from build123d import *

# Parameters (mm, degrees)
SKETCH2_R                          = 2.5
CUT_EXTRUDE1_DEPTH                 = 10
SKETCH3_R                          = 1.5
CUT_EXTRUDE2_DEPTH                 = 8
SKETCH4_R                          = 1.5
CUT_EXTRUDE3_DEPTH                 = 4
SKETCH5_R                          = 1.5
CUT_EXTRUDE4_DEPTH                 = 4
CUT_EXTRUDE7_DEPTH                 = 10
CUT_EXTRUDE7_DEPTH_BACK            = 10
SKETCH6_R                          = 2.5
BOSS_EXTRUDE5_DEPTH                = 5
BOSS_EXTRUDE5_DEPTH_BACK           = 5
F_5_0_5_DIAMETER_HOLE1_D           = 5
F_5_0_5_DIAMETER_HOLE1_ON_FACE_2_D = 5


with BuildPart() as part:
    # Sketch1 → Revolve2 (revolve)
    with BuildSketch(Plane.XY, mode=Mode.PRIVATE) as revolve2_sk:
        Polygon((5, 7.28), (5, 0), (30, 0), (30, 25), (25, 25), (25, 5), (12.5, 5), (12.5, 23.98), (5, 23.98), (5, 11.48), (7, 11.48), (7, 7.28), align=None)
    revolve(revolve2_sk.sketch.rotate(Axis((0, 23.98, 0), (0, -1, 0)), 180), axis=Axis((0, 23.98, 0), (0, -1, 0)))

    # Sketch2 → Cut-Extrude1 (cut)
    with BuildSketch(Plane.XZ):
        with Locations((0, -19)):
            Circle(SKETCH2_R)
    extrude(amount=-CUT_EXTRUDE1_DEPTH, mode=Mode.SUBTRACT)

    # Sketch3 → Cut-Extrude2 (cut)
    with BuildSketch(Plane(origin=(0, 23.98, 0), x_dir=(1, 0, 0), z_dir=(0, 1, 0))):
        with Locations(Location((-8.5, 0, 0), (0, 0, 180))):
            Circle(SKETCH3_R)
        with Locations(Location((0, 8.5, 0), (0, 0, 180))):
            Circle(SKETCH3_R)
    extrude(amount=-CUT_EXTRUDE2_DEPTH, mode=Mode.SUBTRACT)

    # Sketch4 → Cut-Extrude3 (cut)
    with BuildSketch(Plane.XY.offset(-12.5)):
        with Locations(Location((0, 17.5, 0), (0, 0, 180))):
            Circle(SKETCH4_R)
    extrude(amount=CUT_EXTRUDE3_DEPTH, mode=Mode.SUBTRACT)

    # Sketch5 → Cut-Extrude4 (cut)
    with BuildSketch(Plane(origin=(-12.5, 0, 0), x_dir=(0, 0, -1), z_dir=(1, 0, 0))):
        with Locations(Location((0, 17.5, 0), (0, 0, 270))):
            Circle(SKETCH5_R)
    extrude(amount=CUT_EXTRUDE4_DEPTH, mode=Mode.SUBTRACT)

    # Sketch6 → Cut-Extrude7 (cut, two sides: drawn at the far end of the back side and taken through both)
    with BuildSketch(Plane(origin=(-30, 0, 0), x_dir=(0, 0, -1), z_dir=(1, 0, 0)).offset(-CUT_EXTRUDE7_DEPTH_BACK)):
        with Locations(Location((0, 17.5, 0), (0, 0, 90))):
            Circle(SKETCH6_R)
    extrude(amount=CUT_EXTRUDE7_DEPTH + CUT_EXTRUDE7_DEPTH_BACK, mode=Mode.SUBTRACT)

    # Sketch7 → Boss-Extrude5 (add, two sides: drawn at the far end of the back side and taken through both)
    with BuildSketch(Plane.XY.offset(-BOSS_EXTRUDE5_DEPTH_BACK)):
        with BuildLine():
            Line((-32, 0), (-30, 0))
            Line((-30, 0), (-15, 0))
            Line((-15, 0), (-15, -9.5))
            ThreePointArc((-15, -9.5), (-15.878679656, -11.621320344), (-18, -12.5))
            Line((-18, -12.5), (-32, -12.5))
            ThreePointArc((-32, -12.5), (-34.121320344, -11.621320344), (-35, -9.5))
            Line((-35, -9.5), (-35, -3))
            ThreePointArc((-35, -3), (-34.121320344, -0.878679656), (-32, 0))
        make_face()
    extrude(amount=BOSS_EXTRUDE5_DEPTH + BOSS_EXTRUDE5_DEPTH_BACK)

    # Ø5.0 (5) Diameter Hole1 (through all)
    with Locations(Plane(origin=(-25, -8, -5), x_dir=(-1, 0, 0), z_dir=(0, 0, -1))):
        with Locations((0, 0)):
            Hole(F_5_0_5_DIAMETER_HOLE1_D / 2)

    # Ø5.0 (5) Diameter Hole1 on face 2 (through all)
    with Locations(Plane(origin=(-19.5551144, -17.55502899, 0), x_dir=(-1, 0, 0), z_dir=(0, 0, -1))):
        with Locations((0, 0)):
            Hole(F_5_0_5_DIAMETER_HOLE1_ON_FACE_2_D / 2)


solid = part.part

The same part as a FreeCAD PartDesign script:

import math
import FreeCAD as App
import Part
import Sketcher

V = App.Vector
Q = App.Units.Quantity


def add_polygon(sketch, points):
    """Adds a closed chain of lines whose ends are joined by coincident constraints."""
    first, n = sketch.GeometryCount, len(points)
    for a, b in zip(points, points[1:] + points[:1]):
        sketch.addGeometry(Part.LineSegment(App.Vector(*a, 0), App.Vector(*b, 0)), False)
    for i in range(n):
        sketch.addConstraint(Sketcher.Constraint("Coincident", first + i, 2, first + (i + 1) % n, 1))

doc = App.newDocument("Part")
params = doc.addObject("Spreadsheet::Sheet", "Params")
for row, (alias, value) in enumerate([
    ("sketch1_width", "25 mm"),
    ("sketch1_width2", "5 mm"),
    ("sketch1_width3", "2 mm"),
    ("sketch1_height", "20 mm"),
    ("sketch1_width4", "12.5 mm"),
    ("revolution_angle", "360 deg"),
    ("sketch2_diameter", "5 mm"),
    ("pocket1_length", "10 mm"),
    ("sketch3_diameter", "3 mm"),
    ("pocket2_length", "8 mm"),
    ("sketch4_diameter", "3 mm"),
    ("pocket3_length", "4 mm"),
    ("sketch5_diameter", "3 mm"),
    ("pocket4_length", "4 mm"),
    ("sketch6_diameter", "5 mm"),
    ("pocket5_length", "10 mm"),
    ("pocket5_length2", "10 mm"),
    ("sketch7_radius", "3 mm"),
    ("sketch7_width", "17 mm"),
    ("sketch7_height", "6.5 mm"),
    ("pad1_length", "5 mm"),
    ("pad1_length2", "5 mm"),
    ("sketch8_diameter", "5 mm"),
    ("hole_diameter", "5 mm"),
    ("sketch9_diameter", "5 mm"),
    ("hole2_diameter", "5 mm"),
], start=1):
    params.set(f"A{row}", alias)
    params.set(f"B{row}", "=" + value)
    params.setAlias(f"B{row}", alias)

body = doc.addObject("PartDesign::Body", "Body")

# Sketch on XY plane
sketch1 = body.newObject("Sketcher::SketchObject", "Sketch")
sketch1.AttachmentSupport = (doc.getObject("XY_Plane"), [""])
sketch1.MapMode = "FlatFace"
add_polygon(sketch1, [(5, 7.3), (5, 0), (30, 0), (30, 25), (25, 25), (25, 5), (12.5, 5), (12.5, 24), (5, 24), (5, 11.5), (7, 11.5), (7, 7.3)])  # lines 0-11
sketch1.addConstraint(Sketcher.Constraint("Vertical", 0))
sketch1.addConstraint(Sketcher.Constraint("Horizontal", 1))
sketch1.addConstraint(Sketcher.Constraint("Vertical", 2))
sketch1.addConstraint(Sketcher.Constraint("Horizontal", 3))
sketch1.addConstraint(Sketcher.Constraint("Vertical", 4))
sketch1.addConstraint(Sketcher.Constraint("Horizontal", 5))
sketch1.addConstraint(Sketcher.Constraint("Vertical", 6))
sketch1.addConstraint(Sketcher.Constraint("Horizontal", 7))
sketch1.addConstraint(Sketcher.Constraint("Vertical", 8))
sketch1.addConstraint(Sketcher.Constraint("Horizontal", 9))
sketch1.addConstraint(Sketcher.Constraint("Vertical", 10))
sketch1.addConstraint(Sketcher.Constraint("Horizontal", 11))
sketch1.addConstraint(Sketcher.Constraint("PointOnObject", 0, 2, -1))
sketch1.addConstraint(Sketcher.Constraint("Vertical", 0, 2, 7, 2))
sketch1.addConstraint(Sketcher.Constraint("Equal", 1, 2))
sketch1.addConstraint(Sketcher.Constraint("Equal", 5, 8))
sketch1.addConstraint(Sketcher.Constraint("DistanceX", 1, 1, 1, 2, Q("25 mm")))
sketch1.addConstraint(Sketcher.Constraint("DistanceX", 3, 2, 3, 1, Q("5 mm")))
sketch1.addConstraint(Sketcher.Constraint("DistanceX", 9, 1, 9, 2, Q("2 mm")))
sketch1.addConstraint(Sketcher.Constraint("DistanceY", 4, 2, 4, 1, Q("20 mm")))
sketch1.addConstraint(Sketcher.Constraint("DistanceX", 5, 2, 5, 1, Q("12.5 mm")))
sketch1.addConstraint(Sketcher.Constraint("DistanceY", 10, 2, 10, 1, Q("4.2 mm")))
sketch1.addConstraint(Sketcher.Constraint("DistanceX", -1, 1, 0, 2, Q("5 mm")))
sketch1.addConstraint(Sketcher.Constraint("DistanceY", 0, 2, 0, 1, Q("7.28 mm")))
sketch1.setExpression("Constraints[28]", "Params.sketch1_width")
sketch1.setExpression("Constraints[29]", "Params.sketch1_width2")
sketch1.setExpression("Constraints[30]", "Params.sketch1_width3")
sketch1.setExpression("Constraints[31]", "Params.sketch1_height")
sketch1.setExpression("Constraints[32]", "Params.sketch1_width4")
revolution = body.newObject("PartDesign::Revolution", "Revolution")
revolution.Profile = sketch1
revolution.ReferenceAxis = (sketch1, ["V_Axis"])
revolution.setExpression("Angle", "Params.revolution_angle")

# Sketch on XZ plane
sketch2 = body.newObject("Sketcher::SketchObject", "Sketch001")
sketch2.AttachmentSupport = (doc.getObject("XZ_Plane"), [""])
sketch2.MapMode = "FlatFace"
sketch2.addGeometry(Part.Circle(V(0, -19, 0), V(0, 0, 1), 2.5), False)
sketch2.addConstraint(Sketcher.Constraint("PointOnObject", 0, 3, -2))
sketch2.addConstraint(Sketcher.Constraint("Diameter", 0, Q("5 mm")))
sketch2.addConstraint(Sketcher.Constraint("DistanceY", 0, 3, -1, 1, Q("19 mm")))
sketch2.setExpression("Constraints[1]", "Params.sketch2_diameter")
pocket1 = body.newObject("PartDesign::Pocket", "Pocket")
pocket1.Profile = sketch2
pocket1.setExpression("Length", "Params.pocket1_length")

# Sketch on XZ plane
sketch3 = body.newObject("Sketcher::SketchObject", "Sketch002")
sketch3.AttachmentSupport = (doc.getObject("XZ_Plane"), [""])
sketch3.MapMode = "FlatFace"
sketch3.AttachmentOffset = App.Placement(V(0, 0, -23.98), App.Rotation())
sketch3.addGeometry(Part.Circle(V(-8.5, 0, 0), V(0, 0, 1), 1.5), False)
sketch3.addGeometry(Part.Circle(V(0, -8.5, 0), V(0, 0, 1), 1.5), False)
sketch3.addConstraint(Sketcher.Constraint("Equal", 0, 1))
sketch3.addConstraint(Sketcher.Constraint("PointOnObject", 0, 3, -1))
sketch3.addConstraint(Sketcher.Constraint("PointOnObject", 1, 3, -2))
sketch3.addConstraint(Sketcher.Constraint("Diameter", 0, Q("3 mm")))
sketch3.addConstraint(Sketcher.Constraint("DistanceX", 0, 3, -1, 1, Q("8.5 mm")))
sketch3.addConstraint(Sketcher.Constraint("DistanceY", 1, 3, -1, 1, Q("8.5 mm")))
sketch3.setExpression("Constraints[3]", "Params.sketch3_diameter")
pocket2 = body.newObject("PartDesign::Pocket", "Pocket001")
pocket2.Profile = sketch3
pocket2.setExpression("Length", "Params.pocket2_length")
pocket2.Reversed = True

# Sketch on XY plane
sketch4 = body.newObject("Sketcher::SketchObject", "Sketch003")
sketch4.AttachmentSupport = (doc.getObject("XY_Plane"), [""])
sketch4.MapMode = "FlatFace"
sketch4.AttachmentOffset = App.Placement(V(0, 0, -12.5), App.Rotation())
sketch4.addGeometry(Part.Circle(V(0, 17.5, 0), V(0, 0, 1), 1.5), False)
sketch4.addConstraint(Sketcher.Constraint("PointOnObject", 0, 3, -2))
sketch4.addConstraint(Sketcher.Constraint("Diameter", 0, Q("3 mm")))
sketch4.addConstraint(Sketcher.Constraint("DistanceY", -1, 1, 0, 3, Q("17.5 mm")))
sketch4.setExpression("Constraints[1]", "Params.sketch4_diameter")
pocket3 = body.newObject("PartDesign::Pocket", "Pocket002")
pocket3.Profile = sketch4
pocket3.setExpression("Length", "Params.pocket3_length")
pocket3.Reversed = True

# Sketch on YZ plane
sketch5 = body.newObject("Sketcher::SketchObject", "Sketch004")
sketch5.AttachmentSupport = (doc.getObject("YZ_Plane"), [""])
sketch5.MapMode = "FlatFace"
sketch5.AttachmentOffset = App.Placement(V(0, 0, -12.5), App.Rotation())
sketch5.addGeometry(Part.Circle(V(17.5, 0, 0), V(0, 0, 1), 1.5), False)
sketch5.addConstraint(Sketcher.Constraint("PointOnObject", 0, 3, -1))
sketch5.addConstraint(Sketcher.Constraint("Diameter", 0, Q("3 mm")))
sketch5.addConstraint(Sketcher.Constraint("DistanceX", -1, 1, 0, 3, Q("17.5 mm")))
sketch5.setExpression("Constraints[1]", "Params.sketch5_diameter")
pocket4 = body.newObject("PartDesign::Pocket", "Pocket003")
pocket4.Profile = sketch5
pocket4.setExpression("Length", "Params.pocket4_length")
pocket4.Reversed = True

# Sketch on YZ plane
sketch6 = body.newObject("Sketcher::SketchObject", "Sketch005")
sketch6.AttachmentSupport = (doc.getObject("YZ_Plane"), [""])
sketch6.MapMode = "FlatFace"
sketch6.AttachmentOffset = App.Placement(V(0, 0, -30), App.Rotation())
sketch6.addGeometry(Part.Circle(V(17.5, 0, 0), V(0, 0, 1), 2.5), False)
sketch6.addConstraint(Sketcher.Constraint("PointOnObject", 0, 3, -1))
sketch6.addConstraint(Sketcher.Constraint("Diameter", 0, Q("5 mm")))
sketch6.addConstraint(Sketcher.Constraint("DistanceX", -1, 1, 0, 3, Q("17.5 mm")))
sketch6.setExpression("Constraints[1]", "Params.sketch6_diameter")
pocket5 = body.newObject("PartDesign::Pocket", "Pocket004")
pocket5.Profile = sketch6
pocket5.Type = "TwoLengths"
pocket5.setExpression("Length", "Params.pocket5_length")
pocket5.setExpression("Length2", "Params.pocket5_length2")
pocket5.Reversed = True

# Sketch on XY plane
sketch7 = body.newObject("Sketcher::SketchObject", "Sketch006")
sketch7.AttachmentSupport = (doc.getObject("XY_Plane"), [""])
sketch7.MapMode = "FlatFace"
sketch7.addGeometry(Part.LineSegment(V(-15, 0, 0), V(-32, 0, 0)), False)
sketch7.addGeometry(Part.ArcOfCircle(Part.Circle(V(-32, -3, 0), V(0, 0, 1), 3), math.radians(90), math.radians(180)), False)
sketch7.addGeometry(Part.LineSegment(V(-35, -3, 0), V(-35, -9.5, 0)), False)
sketch7.addGeometry(Part.ArcOfCircle(Part.Circle(V(-32, -9.5, 0), V(0, 0, 1), 3), math.radians(180), math.radians(270)), False)
sketch7.addGeometry(Part.LineSegment(V(-32, -12.5, 0), V(-18, -12.5, 0)), False)
sketch7.addGeometry(Part.ArcOfCircle(Part.Circle(V(-18, -9.5, 0), V(0, 0, 1), 3), math.radians(-90), math.radians(0)), False)
sketch7.addGeometry(Part.LineSegment(V(-15, -9.5, 0), V(-15, 0, 0)), False)
sketch7.addConstraint(Sketcher.Constraint("Tangent", 0, 2, 1, 1))
sketch7.addConstraint(Sketcher.Constraint("Tangent", 1, 2, 2, 1))
sketch7.addConstraint(Sketcher.Constraint("Tangent", 2, 2, 3, 1))
sketch7.addConstraint(Sketcher.Constraint("Tangent", 3, 2, 4, 1))
sketch7.addConstraint(Sketcher.Constraint("Tangent", 4, 2, 5, 1))
sketch7.addConstraint(Sketcher.Constraint("Tangent", 5, 2, 6, 1))
sketch7.addConstraint(Sketcher.Constraint("Coincident", 6, 2, 0, 1))
sketch7.addConstraint(Sketcher.Constraint("Horizontal", 0))
sketch7.addConstraint(Sketcher.Constraint("Vertical", 2))
sketch7.addConstraint(Sketcher.Constraint("Horizontal", 4))
sketch7.addConstraint(Sketcher.Constraint("Vertical", 6))
sketch7.addConstraint(Sketcher.Constraint("Equal", 1, 3))
sketch7.addConstraint(Sketcher.Constraint("Equal", 3, 5))
sketch7.addConstraint(Sketcher.Constraint("PointOnObject", 0, 2, -1))
sketch7.addConstraint(Sketcher.Constraint("Radius", 1, Q("3 mm")))
sketch7.addConstraint(Sketcher.Constraint("DistanceX", 0, 2, 0, 1, Q("17 mm")))
sketch7.addConstraint(Sketcher.Constraint("DistanceY", 2, 2, 2, 1, Q("6.5 mm")))
sketch7.addConstraint(Sketcher.Constraint("DistanceX", 1, 3, -1, 1, Q("32 mm")))
sketch7.setExpression("Constraints[14]", "Params.sketch7_radius")
sketch7.setExpression("Constraints[15]", "Params.sketch7_width")
sketch7.setExpression("Constraints[16]", "Params.sketch7_height")
pad1 = body.newObject("PartDesign::Pad", "Pad")
pad1.Profile = sketch7
pad1.Type = "TwoLengths"
pad1.setExpression("Length", "Params.pad1_length")
pad1.setExpression("Length2", "Params.pad1_length2")

# Sketch on XY plane
sketch8 = body.newObject("Sketcher::SketchObject", "Sketch007")
sketch8.AttachmentSupport = (doc.getObject("XY_Plane"), [""])
sketch8.MapMode = "FlatFace"
sketch8.AttachmentOffset = App.Placement(V(0, 0, -5), App.Rotation())
sketch8.addGeometry(Part.Circle(V(-25, -8, 0), V(0, 0, 1), 2.5), False)
sketch8.addConstraint(Sketcher.Constraint("Diameter", 0, Q("5 mm")))
sketch8.addConstraint(Sketcher.Constraint("DistanceX", 0, 3, -1, 1, Q("25 mm")))
sketch8.addConstraint(Sketcher.Constraint("DistanceY", 0, 3, -1, 1, Q("8 mm")))
sketch8.setExpression("Constraints[0]", "Params.sketch8_diameter")
doc.recompute()
hole = body.newObject("PartDesign::Hole", "Hole")
hole.Profile = sketch8
hole.ThreadType = "None"
hole.setExpression("Diameter", "Params.hole_diameter")
hole.DepthType = "ThroughAll"
hole.Reversed = True

# Sketch on XY plane
sketch9 = body.newObject("Sketcher::SketchObject", "Sketch008")
sketch9.AttachmentSupport = (doc.getObject("XY_Plane"), [""])
sketch9.MapMode = "FlatFace"
sketch9.addGeometry(Part.Circle(V(-19.6, -17.6, 0), V(0, 0, 1), 2.5), False)
sketch9.addConstraint(Sketcher.Constraint("Diameter", 0, Q("5 mm")))
sketch9.addConstraint(Sketcher.Constraint("DistanceY", 0, 3, -1, 1, Q("17.555029 mm")))
sketch9.addConstraint(Sketcher.Constraint("DistanceX", 0, 3, -1, 1, Q("19.555114 mm")))
sketch9.setExpression("Constraints[0]", "Params.sketch9_diameter")
doc.recompute()
hole2 = body.newObject("PartDesign::Hole", "Hole001")
hole2.Profile = sketch9
hole2.ThreadType = "None"
hole2.setExpression("Diameter", "Params.hole2_diameter")
hole2.DepthType = "ThroughAll"
hole2.Reversed = True

doc.recompute()
